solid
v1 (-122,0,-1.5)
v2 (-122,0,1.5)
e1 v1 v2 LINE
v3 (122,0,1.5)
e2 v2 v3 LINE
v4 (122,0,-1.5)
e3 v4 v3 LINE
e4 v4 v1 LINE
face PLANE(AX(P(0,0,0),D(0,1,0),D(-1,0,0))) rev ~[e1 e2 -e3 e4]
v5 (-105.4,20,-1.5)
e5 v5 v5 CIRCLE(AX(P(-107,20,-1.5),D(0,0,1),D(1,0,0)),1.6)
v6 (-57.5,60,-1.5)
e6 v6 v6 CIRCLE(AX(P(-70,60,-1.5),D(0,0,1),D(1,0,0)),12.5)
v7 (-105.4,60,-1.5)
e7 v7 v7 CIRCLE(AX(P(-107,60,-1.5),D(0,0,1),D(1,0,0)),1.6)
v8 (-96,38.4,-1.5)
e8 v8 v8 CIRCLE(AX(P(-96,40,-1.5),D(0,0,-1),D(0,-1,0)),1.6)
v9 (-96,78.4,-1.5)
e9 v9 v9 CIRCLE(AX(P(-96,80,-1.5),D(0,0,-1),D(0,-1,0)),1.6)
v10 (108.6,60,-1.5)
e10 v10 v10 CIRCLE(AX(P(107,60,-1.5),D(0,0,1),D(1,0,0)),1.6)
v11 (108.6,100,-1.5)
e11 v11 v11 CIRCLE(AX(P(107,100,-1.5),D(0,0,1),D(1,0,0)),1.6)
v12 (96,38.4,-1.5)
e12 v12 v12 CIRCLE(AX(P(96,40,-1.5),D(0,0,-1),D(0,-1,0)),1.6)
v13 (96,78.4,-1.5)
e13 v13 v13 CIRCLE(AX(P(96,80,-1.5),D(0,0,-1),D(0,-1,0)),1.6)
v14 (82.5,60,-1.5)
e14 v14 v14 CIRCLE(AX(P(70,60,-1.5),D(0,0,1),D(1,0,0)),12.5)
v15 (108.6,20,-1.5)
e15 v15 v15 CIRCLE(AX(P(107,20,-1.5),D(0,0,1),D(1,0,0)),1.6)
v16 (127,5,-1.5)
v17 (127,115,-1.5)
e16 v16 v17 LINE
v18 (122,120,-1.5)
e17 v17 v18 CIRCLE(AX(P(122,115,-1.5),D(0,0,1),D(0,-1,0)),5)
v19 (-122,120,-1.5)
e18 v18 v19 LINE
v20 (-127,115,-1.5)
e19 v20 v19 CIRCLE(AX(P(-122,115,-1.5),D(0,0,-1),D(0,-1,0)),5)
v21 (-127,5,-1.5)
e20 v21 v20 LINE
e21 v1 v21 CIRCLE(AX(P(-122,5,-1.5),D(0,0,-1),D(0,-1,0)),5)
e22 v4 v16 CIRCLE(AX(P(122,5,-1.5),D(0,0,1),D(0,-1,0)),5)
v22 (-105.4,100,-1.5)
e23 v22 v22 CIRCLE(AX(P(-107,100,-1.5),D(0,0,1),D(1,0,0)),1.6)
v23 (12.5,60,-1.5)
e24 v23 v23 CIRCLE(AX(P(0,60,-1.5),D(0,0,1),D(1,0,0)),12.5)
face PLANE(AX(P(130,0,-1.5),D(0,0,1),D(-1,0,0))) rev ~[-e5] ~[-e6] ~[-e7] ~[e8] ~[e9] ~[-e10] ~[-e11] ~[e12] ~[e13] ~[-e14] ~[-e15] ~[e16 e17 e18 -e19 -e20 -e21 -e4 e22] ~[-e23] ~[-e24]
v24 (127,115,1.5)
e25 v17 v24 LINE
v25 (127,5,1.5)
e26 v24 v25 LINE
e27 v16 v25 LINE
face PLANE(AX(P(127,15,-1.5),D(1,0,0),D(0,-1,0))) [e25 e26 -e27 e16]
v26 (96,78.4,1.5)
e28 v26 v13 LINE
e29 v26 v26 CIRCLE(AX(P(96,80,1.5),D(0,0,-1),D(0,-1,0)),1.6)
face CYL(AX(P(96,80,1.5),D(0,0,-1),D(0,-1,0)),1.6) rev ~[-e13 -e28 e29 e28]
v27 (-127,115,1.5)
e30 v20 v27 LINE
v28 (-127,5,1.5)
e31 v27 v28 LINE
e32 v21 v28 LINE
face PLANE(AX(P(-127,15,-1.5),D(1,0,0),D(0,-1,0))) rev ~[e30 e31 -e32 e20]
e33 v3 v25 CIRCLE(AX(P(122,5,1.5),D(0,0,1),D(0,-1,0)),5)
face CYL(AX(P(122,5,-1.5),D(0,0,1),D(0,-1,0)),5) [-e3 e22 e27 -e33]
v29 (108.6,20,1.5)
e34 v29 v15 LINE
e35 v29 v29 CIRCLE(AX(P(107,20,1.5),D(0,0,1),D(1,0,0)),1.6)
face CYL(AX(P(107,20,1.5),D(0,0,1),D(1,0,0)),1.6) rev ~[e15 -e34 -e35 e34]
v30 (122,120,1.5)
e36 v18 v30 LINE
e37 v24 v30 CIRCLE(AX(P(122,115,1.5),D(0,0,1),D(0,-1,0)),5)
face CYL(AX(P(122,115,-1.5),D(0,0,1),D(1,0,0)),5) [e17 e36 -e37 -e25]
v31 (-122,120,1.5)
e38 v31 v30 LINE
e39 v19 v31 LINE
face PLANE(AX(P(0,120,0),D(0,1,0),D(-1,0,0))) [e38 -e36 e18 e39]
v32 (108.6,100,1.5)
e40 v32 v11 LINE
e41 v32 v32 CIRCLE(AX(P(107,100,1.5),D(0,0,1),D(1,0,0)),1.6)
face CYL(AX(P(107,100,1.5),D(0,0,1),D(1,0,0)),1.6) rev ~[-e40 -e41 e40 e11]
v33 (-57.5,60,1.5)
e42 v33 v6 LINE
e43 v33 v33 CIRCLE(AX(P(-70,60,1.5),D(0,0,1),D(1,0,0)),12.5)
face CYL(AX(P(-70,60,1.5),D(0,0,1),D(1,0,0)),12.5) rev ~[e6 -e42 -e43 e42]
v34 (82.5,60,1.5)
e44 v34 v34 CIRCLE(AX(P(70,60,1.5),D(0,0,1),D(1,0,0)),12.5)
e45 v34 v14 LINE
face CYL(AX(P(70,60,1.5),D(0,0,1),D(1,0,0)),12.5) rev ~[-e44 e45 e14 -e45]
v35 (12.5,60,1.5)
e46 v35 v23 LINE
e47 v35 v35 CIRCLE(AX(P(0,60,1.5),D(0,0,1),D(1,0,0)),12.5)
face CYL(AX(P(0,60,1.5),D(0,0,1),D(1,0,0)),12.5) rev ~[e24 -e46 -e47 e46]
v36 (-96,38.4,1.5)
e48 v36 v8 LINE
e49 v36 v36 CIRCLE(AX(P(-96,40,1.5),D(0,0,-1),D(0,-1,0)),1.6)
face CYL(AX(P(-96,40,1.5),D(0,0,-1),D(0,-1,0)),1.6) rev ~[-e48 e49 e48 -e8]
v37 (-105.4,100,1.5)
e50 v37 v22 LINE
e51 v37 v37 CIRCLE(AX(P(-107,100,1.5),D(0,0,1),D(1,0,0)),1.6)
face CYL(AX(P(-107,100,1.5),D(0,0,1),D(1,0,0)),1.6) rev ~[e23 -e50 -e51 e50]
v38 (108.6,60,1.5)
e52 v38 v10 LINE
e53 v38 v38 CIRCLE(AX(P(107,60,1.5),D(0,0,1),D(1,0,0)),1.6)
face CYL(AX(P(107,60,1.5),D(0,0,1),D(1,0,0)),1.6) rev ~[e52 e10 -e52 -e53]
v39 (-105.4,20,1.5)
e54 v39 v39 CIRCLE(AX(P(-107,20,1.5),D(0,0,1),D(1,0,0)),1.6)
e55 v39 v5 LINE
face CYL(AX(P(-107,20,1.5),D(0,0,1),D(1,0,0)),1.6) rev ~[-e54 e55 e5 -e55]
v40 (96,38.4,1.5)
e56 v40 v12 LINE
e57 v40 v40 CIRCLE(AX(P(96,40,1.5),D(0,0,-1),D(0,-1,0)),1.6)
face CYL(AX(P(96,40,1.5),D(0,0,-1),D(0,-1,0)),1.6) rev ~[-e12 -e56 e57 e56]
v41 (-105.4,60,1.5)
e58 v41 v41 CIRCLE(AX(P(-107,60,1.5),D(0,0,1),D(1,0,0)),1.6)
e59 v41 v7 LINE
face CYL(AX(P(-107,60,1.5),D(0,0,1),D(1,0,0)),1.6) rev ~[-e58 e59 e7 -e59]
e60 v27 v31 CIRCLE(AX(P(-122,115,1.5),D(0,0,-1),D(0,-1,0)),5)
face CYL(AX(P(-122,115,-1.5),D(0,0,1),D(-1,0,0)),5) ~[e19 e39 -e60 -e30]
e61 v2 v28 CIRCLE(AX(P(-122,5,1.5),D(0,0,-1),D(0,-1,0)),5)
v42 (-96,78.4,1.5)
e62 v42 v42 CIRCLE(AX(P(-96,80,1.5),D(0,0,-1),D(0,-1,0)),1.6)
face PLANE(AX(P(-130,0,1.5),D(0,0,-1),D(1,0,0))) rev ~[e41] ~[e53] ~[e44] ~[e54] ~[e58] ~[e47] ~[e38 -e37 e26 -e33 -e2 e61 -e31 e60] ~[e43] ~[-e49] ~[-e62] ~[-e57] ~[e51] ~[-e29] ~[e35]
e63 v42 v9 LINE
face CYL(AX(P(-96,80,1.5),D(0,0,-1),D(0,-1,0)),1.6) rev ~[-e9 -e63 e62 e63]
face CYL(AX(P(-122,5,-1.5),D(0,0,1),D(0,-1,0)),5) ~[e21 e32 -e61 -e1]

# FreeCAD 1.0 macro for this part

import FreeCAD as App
import Part
import Sketcher
from FreeCAD import Vector


def edges_at(feature, points):
    """Names of the edges that pass closest to the given points."""
    edges = feature.Shape.Edges
    near = lambda p: min(range(len(edges)), key=lambda i: edges[i].distToShape(Part.Vertex(*p))[0])
    return sorted({f"Edge{near(p) + 1}" for p in points})

doc = App.newDocument("Part")
body = doc.addObject("PartDesign::Body", "Body")

# Sketch on XZ plane
sketch1 = body.newObject("Sketcher::SketchObject", "Sketch")
sketch1.AttachmentSupport = (doc.getObject("XZ_Plane"), [""])
sketch1.MapMode = "FlatFace"
sketch1.addGeometry([
    Part.LineSegment(Vector(-130, -1.5, 0), Vector(-130, 1.5, 0)),
    Part.LineSegment(Vector(-130, 1.5, 0), Vector(130, 1.5, 0)),
    Part.LineSegment(Vector(130, 1.5, 0), Vector(130, -1.5, 0)),
    Part.LineSegment(Vector(130, -1.5, 0), Vector(-130, -1.5, 0)),
], False)
sketch1.addConstraint([
    Sketcher.Constraint("Coincident", 0, 2, 1, 1),
    Sketcher.Constraint("Coincident", 1, 2, 2, 1),
    Sketcher.Constraint("Coincident", 2, 2, 3, 1),
    Sketcher.Constraint("Coincident", 3, 2, 0, 1),
    Sketcher.Constraint("Vertical", 0),
    Sketcher.Constraint("Horizontal", 1),
    Sketcher.Constraint("Vertical", 2),
    Sketcher.Constraint("Horizontal", 3),
    Sketcher.Constraint("Symmetric", 0, 2, 2, 2, -1, 1),
    Sketcher.Constraint("DistanceX", 1, 1, 1, 2, 260.0),
    Sketcher.Constraint("DistanceY", 0, 1, 0, 2, 3.0),
])
pad1 = body.newObject("PartDesign::Pad", "Pad")
pad1.Profile = sketch1
pad1.Length = 120
pad1.Reversed = True

# Sketch on XY plane
sketch2 = body.newObject("Sketcher::SketchObject", "Sketch001")
sketch2.AttachmentSupport = (doc.getObject("XY_Plane"), [""])
sketch2.MapMode = "FlatFace"
sketch2.AttachmentOffset = App.Placement(Vector(0, 0, 1.5), App.Rotation())
sketch2.addGeometry([
    Part.Circle(Vector(-70, 60, 0), Vector(0, 0, 1), 12),
    Part.Circle(Vector(0, 60, 0), Vector(0, 0, 1), 12),
    Part.Circle(Vector(70, 60, 0), Vector(0, 0, 1), 12),
], False)
sketch2.addConstraint([
    Sketcher.Constraint("Equal", 0, 1),
    Sketcher.Constraint("Equal", 1, 2),
    Sketcher.Constraint("Symmetric", 0, 3, 2, 3, -2),
    Sketcher.Constraint("PointOnObject", 1, 3, -2),
    Sketcher.Constraint("Horizontal", 0, 3, 1, 3),
    Sketcher.Constraint("Diameter", 0, 25.0),
    Sketcher.Constraint("DistanceX", 0, 3, -1, 1, 70.0),
    Sketcher.Constraint("DistanceY", -1, 1, 0, 3, 60.0),
])
pocket1 = body.newObject("PartDesign::Pocket", "Pocket")
pocket1.Profile = sketch2
pocket1.Type = "ThroughAll"

# Sketch on XY plane
sketch3 = body.newObject("Sketcher::SketchObject", "Sketch002")
sketch3.AttachmentSupport = (doc.getObject("XY_Plane"), [""])
sketch3.MapMode = "FlatFace"
sketch3.AttachmentOffset = App.Placement(Vector(0, 0, -1.5), App.Rotation())
sketch3.addGeometry([
    Part.LineSegment(Vector(130, 0, 0), Vector(127, 0, 0)),  # 0
    Part.LineSegment(Vector(127, 0, 0), Vector(127, 120, 0)),  # 1
    Part.LineSegment(Vector(127, 120, 0), Vector(130, 120, 0)),  # 2
    Part.LineSegment(Vector(130, 120, 0), Vector(130, 0, 0)),  # 3
    Part.LineSegment(Vector(-127, 0, 0), Vector(-130, 0, 0)),  # 4
    Part.LineSegment(Vector(-130, 0, 0), Vector(-130, 120, 0)),  # 5
    Part.LineSegment(Vector(-130, 120, 0), Vector(-127, 120, 0)),  # 6
    Part.LineSegment(Vector(-127, 120, 0), Vector(-127, 0, 0)),  # 7
], False)
sketch3.addConstraint([
    Sketcher.Constraint("Coincident", 0, 2, 1, 1),
    Sketcher.Constraint("Coincident", 1, 2, 2, 1),
    Sketcher.Constraint("Coincident", 2, 2, 3, 1),
    Sketcher.Constraint("Coincident", 3, 2, 0, 1),
    Sketcher.Constraint("Coincident", 4, 2, 5, 1),
    Sketcher.Constraint("Coincident", 5, 2, 6, 1),
    Sketcher.Constraint("Coincident", 6, 2, 7, 1),
    Sketcher.Constraint("Coincident", 7, 2, 4, 1),
    Sketcher.Constraint("Horizontal", 0),
    Sketcher.Constraint("Vertical", 1),
    Sketcher.Constraint("Horizontal", 2),
    Sketcher.Constraint("Vertical", 3),
    Sketcher.Constraint("Horizontal", 4),
    Sketcher.Constraint("Vertical", 5),
    Sketcher.Constraint("Horizontal", 6),
    Sketcher.Constraint("Vertical", 7),
    Sketcher.Constraint("Symmetric", 3, 2, 4, 2, -1, 1),
    Sketcher.Constraint("Symmetric", 1, 2, 6, 2, -2),
    Sketcher.Constraint("PointOnObject", 0, 2, -1),
    Sketcher.Constraint("DistanceX", 0, 2, 0, 1, 3.0),
    Sketcher.Constraint("DistanceY", 1, 1, 1, 2, 120.0),
    Sketcher.Constraint("DistanceX", -1, 1, 0, 2, 127.0),
])
pocket2 = body.newObject("PartDesign::Pocket", "Pocket001")
pocket2.Profile = sketch3
pocket2.Type = "ThroughAll"
pocket2.Reversed = True

# Sketch on XY plane
sketch4 = body.newObject("Sketcher::SketchObject", "Sketch003")
sketch4.AttachmentSupport = (doc.getObject("XY_Plane"), [""])
sketch4.MapMode = "FlatFace"
sketch4.AttachmentOffset = App.Placement(Vector(0, 0, 1.5), App.Rotation())
sketch4.addGeometry([
    Part.Circle(Vector(-107, 100, 0), Vector(0, 0, 1), 1.6),  # 0
    Part.Circle(Vector(-107, 20, 0), Vector(0, 0, 1), 1.6),  # 1
    Part.Circle(Vector(107, 100, 0), Vector(0, 0, 1), 1.6),  # 2
    Part.Circle(Vector(107, 20, 0), Vector(0, 0, 1), 1.6),  # 3
    Part.Circle(Vector(-107, 60, 0), Vector(0, 0, 1), 1.6),  # 4
    Part.Circle(Vector(107, 60, 0), Vector(0, 0, 1), 1.6),  # 5
], False)
sketch4.addConstraint([
    Sketcher.Constraint("Equal", 0, 1),
    Sketcher.Constraint("Equal", 1, 2),
    Sketcher.Constraint("Equal", 2, 3),
    Sketcher.Constraint("Equal", 3, 4),
    Sketcher.Constraint("Equal", 4, 5),
    Sketcher.Constraint("Symmetric", 0, 3, 2, 3, -2),
    Sketcher.Constraint("Symmetric", 1, 3, 3, 3, -2),
    Sketcher.Constraint("Symmetric", 4, 3, 5, 3, -2),
    Sketcher.Constraint("Vertical", 0, 3, 1, 3),
    Sketcher.Constraint("Vertical", 1, 3, 4, 3),
    Sketcher.Constraint("Diameter", 0, 3.2),
    Sketcher.Constraint("DistanceY", -1, 1, 1, 3, 20.0),
    Sketcher.Constraint("DistanceY", 4, 3, 0, 3, 40.0),
    Sketcher.Constraint("DistanceY", 1, 3, 4, 3, 40.0),
    Sketcher.Constraint("DistanceX", 0, 3, -1, 1, 107.0),
])
pocket3 = body.newObject("PartDesign::Pocket", "Pocket002")
pocket3.Profile = sketch4
pocket3.Type = "ThroughAll"
doc.recompute()

fillet = body.newObject("PartDesign::Fillet", "Fillet")
fillet.Base = (pocket3, edges_at(pocket3, [
    (-127, 120, 0),
    (-127, 0, 0),
    (127, 120, 0),
    (127, 0, 0),
]))
fillet.Radius = 5

# Sketch on XY plane
sketch5 = body.newObject("Sketcher::SketchObject", "Sketch004")
sketch5.AttachmentSupport = (doc.getObject("XY_Plane"), [""])
sketch5.MapMode = "FlatFace"
sketch5.AttachmentOffset = App.Placement(Vector(0, 0, 1.5), App.Rotation())
sketch5.addGeometry([
    Part.Circle(Vector(-96, 80, 0), Vector(0, 0, 1), 1.6),
    Part.Circle(Vector(-96, 40, 0), Vector(0, 0, 1), 1.6),
    Part.Circle(Vector(96, 40, 0), Vector(0, 0, 1), 1.6),
    Part.Circle(Vector(96, 80, 0), Vector(0, 0, 1), 1.6),
], False)
sketch5.addConstraint([
    Sketcher.Constraint("Equal", 0, 1),
    Sketcher.Constraint("Equal", 1, 2),
    Sketcher.Constraint("Equal", 2, 3),
    Sketcher.Constraint("Symmetric", 1, 3, 2, 3, -2),
    Sketcher.Constraint("Symmetric", 0, 3, 3, 3, -2),
    Sketcher.Constraint("Vertical", 0, 3, 1, 3),
    Sketcher.Constraint("Diameter", 0, 3.2),
    Sketcher.Constraint("DistanceX", 0, 3, -1, 1, 96.0),
    Sketcher.Constraint("DistanceY", -1, 1, 0, 3, 80.0),
    Sketcher.Constraint("DistanceY", -1, 1, 1, 3, 40.0),
])
doc.recompute()
hole = body.newObject("PartDesign::Hole", "Hole")
hole.Profile = sketch5
hole.ThreadType = "None"
hole.Diameter = 3.2
hole.DepthType = "ThroughAll"

doc.recompute()
